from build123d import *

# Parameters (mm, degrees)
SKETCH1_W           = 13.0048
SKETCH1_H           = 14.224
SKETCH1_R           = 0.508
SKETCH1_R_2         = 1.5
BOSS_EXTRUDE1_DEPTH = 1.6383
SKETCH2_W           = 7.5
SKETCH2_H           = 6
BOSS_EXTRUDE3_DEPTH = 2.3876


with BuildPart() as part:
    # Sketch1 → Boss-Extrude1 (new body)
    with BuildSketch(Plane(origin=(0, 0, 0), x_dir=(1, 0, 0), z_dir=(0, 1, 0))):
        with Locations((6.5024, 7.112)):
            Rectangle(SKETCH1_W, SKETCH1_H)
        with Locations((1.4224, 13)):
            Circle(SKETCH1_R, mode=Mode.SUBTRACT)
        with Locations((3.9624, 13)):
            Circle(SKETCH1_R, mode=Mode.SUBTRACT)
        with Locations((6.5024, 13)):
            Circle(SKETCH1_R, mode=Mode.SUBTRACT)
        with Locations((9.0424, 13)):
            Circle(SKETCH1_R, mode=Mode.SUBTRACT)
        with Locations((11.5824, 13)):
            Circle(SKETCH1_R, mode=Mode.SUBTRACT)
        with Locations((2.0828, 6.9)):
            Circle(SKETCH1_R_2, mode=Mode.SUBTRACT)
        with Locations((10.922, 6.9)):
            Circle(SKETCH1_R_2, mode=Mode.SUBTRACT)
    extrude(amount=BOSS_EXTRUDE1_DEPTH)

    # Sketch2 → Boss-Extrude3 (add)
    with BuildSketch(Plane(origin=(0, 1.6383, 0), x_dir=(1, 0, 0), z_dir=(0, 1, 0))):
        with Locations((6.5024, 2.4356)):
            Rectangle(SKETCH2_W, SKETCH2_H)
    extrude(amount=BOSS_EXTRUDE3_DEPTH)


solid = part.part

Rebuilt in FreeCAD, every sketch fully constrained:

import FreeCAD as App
import Part
import Sketcher
from FreeCAD import Vector
Q = App.Units.Quantity

doc = App.newDocument("Part")
params = doc.addObject("Spreadsheet::Sheet", "Params")
for row, (alias, value) in enumerate([
    ("sketch1_diameter", "0.04 in"),
    ("sketch1_height", "0.56 in"),
    ("sketch1_width", "0.512 in"),
    ("pad1_length", "0.0645 in"),
    ("pad2_length", "0.094 in"),
], start=1):
    params.set(f"A{row}", alias)
    params.set(f"B{row}", "=" + value)
    params.setAlias(f"B{row}", alias)

body = doc.addObject("PartDesign::Body", "Body")

sketch1 = body.newObject("Sketcher::SketchObject", "Sketch")
sketch1.AttachmentSupport = (doc.getObject("XZ_Plane"), [""])
sketch1.MapMode = "FlatFace"
sketch1.addGeometry([
    Part.LineSegment(Vector(0, -14.2, 0), Vector(0, 0, 0)),
    Part.LineSegment(Vector(0, 0, 0), Vector(13, 0, 0)),
    Part.LineSegment(Vector(13, 0, 0), Vector(13, -14.2, 0)),
    Part.LineSegment(Vector(13, -14.2, 0), Vector(0, -14.2, 0)),
    Part.Circle(Vector(2.1, -6.9, 0), Vector(0, 0, 1), 1.5),
    Part.Circle(Vector(10.9, -6.9, 0), Vector(0, 0, 1), 1.5),
    Part.Circle(Vector(1.4, -13, 0), Vector(0, 0, 1), 0.5),
    Part.Circle(Vector(4, -13, 0), Vector(0, 0, 1), 0.5),
    Part.Circle(Vector(6.5, -13, 0), Vector(0, 0, 1), 0.5),
    Part.Circle(Vector(9, -13, 0), Vector(0, 0, 1), 0.5),
    Part.Circle(Vector(11.6, -13, 0), Vector(0, 0, 1), 0.5),
], False)
sketch1.addConstraint([
    Sketcher.Constraint("Coincident", 0, 2, 1, 1),
    Sketcher.Constraint("Coincident", 1, 2, 2, 1),
    Sketcher.Constraint("Coincident", 2, 2, 3, 1),
    Sketcher.Constraint("Coincident", 3, 2, 0, 1),
    Sketcher.Constraint("Vertical", 0),
    Sketcher.Constraint("Horizontal", 1),
    Sketcher.Constraint("Vertical", 2),
    Sketcher.Constraint("Horizontal", 3),
    Sketcher.Constraint("Coincident", 0, 2, -1, 1),
    Sketcher.Constraint("Equal", 4, 5),
    Sketcher.Constraint("Equal", 6, 7),
    Sketcher.Constraint("Equal", 7, 8),
    Sketcher.Constraint("Equal", 8, 9),
    Sketcher.Constraint("Equal", 9, 10),
    Sketcher.Constraint("Horizontal", 4, 3, 5, 3),
    Sketcher.Constraint("Horizontal", 6, 3, 7, 3),
    Sketcher.Constraint("Horizontal", 7, 3, 8, 3),
    Sketcher.Constraint("Horizontal", 8, 3, 9, 3),
    Sketcher.Constraint("Horizontal", 9, 3, 10, 3),
    Sketcher.Constraint("Diameter", 6, Q("0.04 in")),
    Sketcher.Constraint("DistanceY", 0, 1, 0, 2, Q("0.56 in")),
    Sketcher.Constraint("DistanceX", 6, 3, 7, 3, Q("0.1 in")),
    Sketcher.Constraint("DistanceX", 7, 3, 8, 3, Q("0.1 in")),
    Sketcher.Constraint("DistanceX", 8, 3, 9, 3, Q("0.1 in")),
    Sketcher.Constraint("DistanceX", 9, 3, 10, 3, Q("0.1 in")),
    Sketcher.Constraint("Diameter", 4, Q("3 mm")),
    Sketcher.Constraint("DistanceX", 1, 1, 1, 2, Q("0.512 in")),
    Sketcher.Constraint("DistanceX", -1, 1, 5, 3, Q("0.43 in")),
    Sketcher.Constraint("DistanceX", 4, 3, 1, 2, Q("0.43 in")),
    Sketcher.Constraint("DistanceX", -1, 1, 6, 3, Q("0.056 in")),
    Sketcher.Constraint("DistanceY", 4, 3, -1, 1, Q("6.9 mm")),
    Sketcher.Constraint("DistanceY", 6, 3, -1, 1, Q("13 mm")),
])
sketch1.setExpression("Constraints[19]", "Params.sketch1_diameter")
sketch1.setExpression("Constraints[20]", "Params.sketch1_height")
sketch1.setExpression("Constraints[26]", "Params.sketch1_width")
pad1 = body.newObject("PartDesign::Pad", "Pad")
pad1.Profile = sketch1
pad1.setExpression("Length", "Params.pad1_length")
pad1.Reversed = True

sketch2 = body.newObject("Sketcher::SketchObject", "Sketch001")
sketch2.AttachmentSupport = (doc.getObject("XZ_Plane"), [""])
sketch2.MapMode = "FlatFace"
sketch2.AttachmentOffset = App.Placement(Vector(0, 0, -0.0645 * 25.4), App.Rotation())
sketch2.addGeometry([
    Part.LineSegment(Vector(3, -5, 0), Vector(3, 1, 0)),
    Part.LineSegment(Vector(3, 1, 0), Vector(10, 1, 0)),
    Part.LineSegment(Vector(10, 1, 0), Vector(10, -5, 0)),
    Part.LineSegment(Vector(10, -5, 0), Vector(3, -5, 0)),
], False)
sketch2.addConstraint([
    Sketcher.Constraint("Coincident", 0, 2, 1, 1),
    Sketcher.Constraint("Coincident", 1, 2, 2, 1),
    Sketcher.Constraint("Coincident", 2, 2, 3, 1),
    Sketcher.Constraint("Coincident", 3, 2, 0, 1),
    Sketcher.Constraint("Vertical", 0),
    Sketcher.Constraint("Horizontal", 1),
    Sketcher.Constraint("Vertical", 2),
    Sketcher.Constraint("Horizontal", 3),
    Sketcher.Constraint("DistanceY", 2, 2, -1, 1, Q("0.214 in")),
    Sketcher.Constraint("DistanceX", 1, 1, 1, 2, Q("7.5 mm")),
    Sketcher.Constraint("DistanceY", 0, 1, 0, 2, Q("6 mm")),
    Sketcher.Constraint("DistanceX", -1, 1, 0, 2, Q("2.7524 mm")),
])
pad2 = body.newObject("PartDesign::Pad", "Pad001")
pad2.Profile = sketch2
pad2.setExpression("Length", "Params.pad2_length")
pad2.Reversed = True

doc.recompute()
